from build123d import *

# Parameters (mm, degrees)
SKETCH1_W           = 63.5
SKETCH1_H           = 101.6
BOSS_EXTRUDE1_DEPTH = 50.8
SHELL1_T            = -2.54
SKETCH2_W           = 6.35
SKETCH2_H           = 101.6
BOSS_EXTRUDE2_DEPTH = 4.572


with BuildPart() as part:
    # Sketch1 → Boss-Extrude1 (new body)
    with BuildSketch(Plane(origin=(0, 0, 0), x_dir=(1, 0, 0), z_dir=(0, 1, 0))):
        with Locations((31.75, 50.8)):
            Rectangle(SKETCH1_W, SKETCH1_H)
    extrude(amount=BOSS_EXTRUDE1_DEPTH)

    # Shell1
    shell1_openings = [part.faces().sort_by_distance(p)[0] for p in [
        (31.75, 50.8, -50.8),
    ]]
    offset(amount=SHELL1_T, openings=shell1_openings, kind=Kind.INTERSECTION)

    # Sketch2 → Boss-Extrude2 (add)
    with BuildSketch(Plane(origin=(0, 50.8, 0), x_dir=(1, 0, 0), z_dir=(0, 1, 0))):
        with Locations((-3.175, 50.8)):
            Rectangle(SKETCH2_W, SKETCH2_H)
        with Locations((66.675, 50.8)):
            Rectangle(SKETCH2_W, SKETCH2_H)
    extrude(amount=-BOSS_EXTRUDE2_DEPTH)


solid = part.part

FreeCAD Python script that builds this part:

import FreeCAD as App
import Part
import Sketcher
from FreeCAD import Vector
Q = App.Units.Quantity


def faces_at(feature, points):
    """Names of the faces that lie closest to the given points."""
    faces = feature.Shape.Faces
    near = lambda p: min(range(len(faces)), key=lambda i: faces[i].distToShape(Part.Vertex(*p))[0])
    return sorted({f"Face{near(p) + 1}" for p in points})

doc = App.newDocument("Part")
body = doc.addObject("PartDesign::Body", "Body")

# Sketch on XZ plane
sketch1 = body.newObject("Sketcher::SketchObject", "Sketch")
sketch1.AttachmentSupport = (doc.getObject("XZ_Plane"), [""])
sketch1.MapMode = "FlatFace"
sketch1.addGeometry([
    Part.LineSegment(Vector(0, -102, 0), Vector(0, 0, 0)),
    Part.LineSegment(Vector(0, 0, 0), Vector(64, 0, 0)),
    Part.LineSegment(Vector(64, 0, 0), Vector(64, -102, 0)),
    Part.LineSegment(Vector(64, -102, 0), Vector(0, -102, 0)),
], False)
sketch1.addConstraint([
    Sketcher.Constraint("Coincident", 0, 2, 1, 1),
    Sketcher.Constraint("Coincident", 1, 2, 2, 1),
    Sketcher.Constraint("Coincident", 2, 2, 3, 1),
    Sketcher.Constraint("Coincident", 3, 2, 0, 1),
    Sketcher.Constraint("Vertical", 0),
    Sketcher.Constraint("Horizontal", 1),
    Sketcher.Constraint("Vertical", 2),
    Sketcher.Constraint("Horizontal", 3),
    Sketcher.Constraint("Coincident", 0, 2, -1, 1),
    Sketcher.Constraint("DistanceY", 0, 1, 0, 2, Q("4 in")),
    Sketcher.Constraint("DistanceX", 1, 1, 1, 2, Q("2.5 in")),
])
pad1 = body.newObject("PartDesign::Pad", "Pad")
pad1.Profile = sketch1
pad1.Length = Q("2 in")
pad1.Reversed = True
doc.recompute()

thickness = body.newObject("PartDesign::Thickness", "Thickness")
thickness.Base = (pad1, faces_at(pad1, [(31.75, 50.8, -50.8)]))
thickness.Value = Q("0.1 in")
thickness.Reversed = True
thickness.Join = "Intersection"

# Sketch on XZ plane
sketch2 = body.newObject("Sketcher::SketchObject", "Sketch001")
sketch2.AttachmentSupport = (doc.getObject("XZ_Plane"), [""])
sketch2.MapMode = "FlatFace"
sketch2.AttachmentOffset = App.Placement(Vector(0, 0, -2 * 25.4), App.Rotation())
sketch2.addGeometry([
    Part.LineSegment(Vector(-6, -102, 0), Vector(-6, 0, 0)),  # 0
    Part.LineSegment(Vector(-6, 0, 0), Vector(0, 0, 0)),  # 1
    Part.LineSegment(Vector(0, 0, 0), Vector(0, -102, 0)),  # 2
    Part.LineSegment(Vector(0, -102, 0), Vector(-6, -102, 0)),  # 3
    Part.LineSegment(Vector(64, -102, 0), Vector(64, 0, 0)),  # 4
    Part.LineSegment(Vector(64, 0, 0), Vector(70, 0, 0)),  # 5
    Part.LineSegment(Vector(70, 0, 0), Vector(70, -102, 0)),  # 6
    Part.LineSegment(Vector(70, -102, 0), Vector(64, -102, 0)),  # 7
], False)
sketch2.addConstraint([
    Sketcher.Constraint("Coincident", 0, 2, 1, 1),
    Sketcher.Constraint("Coincident", 1, 2, 2, 1),
    Sketcher.Constraint("Coincident", 2, 2, 3, 1),
    Sketcher.Constraint("Coincident", 3, 2, 0, 1),
    Sketcher.Constraint("Coincident", 4, 2, 5, 1),
    Sketcher.Constraint("Coincident", 5, 2, 6, 1),
    Sketcher.Constraint("Coincident", 6, 2, 7, 1),
    Sketcher.Constraint("Coincident", 7, 2, 4, 1),
    Sketcher.Constraint("Vertical", 0),
    Sketcher.Constraint("Horizontal", 1),
    Sketcher.Constraint("Vertical", 2),
    Sketcher.Constraint("Horizontal", 3),
    Sketcher.Constraint("Vertical", 4),
    Sketcher.Constraint("Horizontal", 5),
    Sketcher.Constraint("Vertical", 6),
    Sketcher.Constraint("Horizontal", 7),
    Sketcher.Constraint("Coincident", 1, 2, -1, 1),
    Sketcher.Constraint("PointOnObject", 4, 2, -1),
    Sketcher.Constraint("Horizontal", 3, 2, 6, 2),
    Sketcher.Constraint("Equal", 3, 5),
    Sketcher.Constraint("DistanceY", 0, 1, 0, 2, Q("4 in")),
    Sketcher.Constraint("DistanceX", 0, 2, 5, 2, Q("3 in")),
    Sketcher.Constraint("DistanceX", 1, 1, 1, 2, Q("0.25 in")),
])
pad2 = body.newObject("PartDesign::Pad", "Pad001")
pad2.Profile = sketch2
pad2.Length = Q("0.18 in")

doc.recompute()
